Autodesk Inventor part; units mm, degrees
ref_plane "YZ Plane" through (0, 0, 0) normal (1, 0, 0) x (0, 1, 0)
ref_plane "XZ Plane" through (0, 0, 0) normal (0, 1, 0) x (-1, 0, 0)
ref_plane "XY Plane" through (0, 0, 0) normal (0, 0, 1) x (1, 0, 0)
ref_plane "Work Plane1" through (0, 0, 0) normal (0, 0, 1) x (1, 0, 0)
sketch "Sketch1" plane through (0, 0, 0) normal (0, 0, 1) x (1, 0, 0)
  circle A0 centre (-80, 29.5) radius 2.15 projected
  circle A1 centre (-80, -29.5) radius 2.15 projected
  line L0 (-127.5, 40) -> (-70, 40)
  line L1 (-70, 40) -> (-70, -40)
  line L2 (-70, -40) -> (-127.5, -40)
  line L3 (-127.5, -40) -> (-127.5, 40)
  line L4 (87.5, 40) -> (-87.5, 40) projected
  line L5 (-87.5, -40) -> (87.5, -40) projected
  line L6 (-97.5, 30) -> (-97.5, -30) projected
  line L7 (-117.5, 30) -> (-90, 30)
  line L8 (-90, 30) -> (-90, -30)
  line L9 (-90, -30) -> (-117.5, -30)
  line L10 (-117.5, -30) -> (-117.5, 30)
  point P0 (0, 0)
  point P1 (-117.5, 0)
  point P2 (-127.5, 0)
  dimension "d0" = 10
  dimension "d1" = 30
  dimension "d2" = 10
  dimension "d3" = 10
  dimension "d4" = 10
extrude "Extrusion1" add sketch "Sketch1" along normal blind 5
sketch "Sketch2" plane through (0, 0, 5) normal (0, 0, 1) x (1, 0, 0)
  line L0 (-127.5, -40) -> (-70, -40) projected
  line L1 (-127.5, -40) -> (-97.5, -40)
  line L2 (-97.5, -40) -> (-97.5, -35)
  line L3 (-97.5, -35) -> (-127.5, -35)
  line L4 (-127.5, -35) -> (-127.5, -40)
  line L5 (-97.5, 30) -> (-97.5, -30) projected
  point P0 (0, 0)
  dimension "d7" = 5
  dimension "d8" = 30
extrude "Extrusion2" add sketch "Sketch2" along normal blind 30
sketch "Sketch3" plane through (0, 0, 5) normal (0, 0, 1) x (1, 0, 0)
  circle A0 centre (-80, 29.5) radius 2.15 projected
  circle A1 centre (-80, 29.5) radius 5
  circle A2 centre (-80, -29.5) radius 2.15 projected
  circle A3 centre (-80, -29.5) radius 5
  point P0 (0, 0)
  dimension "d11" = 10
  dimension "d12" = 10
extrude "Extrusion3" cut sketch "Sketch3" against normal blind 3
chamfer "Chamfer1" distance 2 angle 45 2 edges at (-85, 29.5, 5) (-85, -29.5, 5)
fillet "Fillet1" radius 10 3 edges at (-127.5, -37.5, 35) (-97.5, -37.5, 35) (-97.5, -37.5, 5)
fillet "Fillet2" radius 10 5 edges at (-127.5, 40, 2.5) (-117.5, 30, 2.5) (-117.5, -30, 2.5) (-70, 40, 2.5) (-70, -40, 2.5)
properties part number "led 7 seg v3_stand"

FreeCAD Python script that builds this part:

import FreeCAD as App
import Part
import Sketcher


def edges_at(feature, points):
    """Names of the edges that pass closest to the given points."""
    edges = feature.Shape.Edges
    near = lambda p: min(range(len(edges)), key=lambda i: edges[i].distToShape(Part.Vertex(*p))[0])
    return sorted({f"Edge{near(p) + 1}" for p in points})


def add_polygon(sketch, points):
    """Adds a closed chain of lines whose ends are joined by coincident constraints."""
    first, n = sketch.GeometryCount, len(points)
    for a, b in zip(points, points[1:] + points[:1]):
        sketch.addGeometry(Part.LineSegment(App.Vector(*a, 0), App.Vector(*b, 0)), False)
    for i in range(n):
        sketch.addConstraint(Sketcher.Constraint("Coincident", first + i, 2, first + (i + 1) % n, 1))

doc = App.newDocument("Part")
params = doc.addObject("Spreadsheet::Sheet", "Params")
for row, (alias, value) in enumerate([
    ("sketch1_diameter", "4.3 mm"),
    ("sketch1_width", "57.5 mm"),
    ("pad1_length", "5 mm"),
    ("sketch2_width", "30 mm"),
    ("sketch2_height", "5 mm"),
    ("pad2_length", "30 mm"),
    ("sketch3_diameter", "10 mm"),
    ("sketch3_diameter2", "4.3 mm"),
    ("pocket1_length", "3 mm"),
    ("chamfer_size", "2 mm"),
    ("fillet_radius", "10 mm"),
    ("fillet2_radius", "10 mm"),
], start=1):
    params.set(f"A{row}", alias)
    params.set(f"B{row}", "=" + value)
    params.setAlias(f"B{row}", alias)

body = doc.addObject("PartDesign::Body", "Body")

# Sketch on XY plane
sketch1 = body.newObject("Sketcher::SketchObject", "Sketch")
sketch1.AttachmentSupport = (doc.getObject("XY_Plane"), [""])
sketch1.MapMode = "FlatFace"
add_polygon(sketch1, [(-70, 40), (-127.5, 40), (-127.5, -40), (-70, -40)])  # lines 0-3
sketch1.addGeometry(Part.Circle(App.Vector(-80, -29.5, 0), App.Vector(0, 0, 1), 2.15), False)  # 4
add_polygon(sketch1, [(-117.5, 30), (-90, 30), (-90, -30), (-117.5, -30)])  # lines 5-8
sketch1.addGeometry(Part.Circle(App.Vector(-80, 29.5, 0), App.Vector(0, 0, 1), 2.15), False)  # 9
sketch1.addConstraint([
    Sketcher.Constraint("Horizontal", 0),
    Sketcher.Constraint("Vertical", 1),
    Sketcher.Constraint("Horizontal", 2),
    Sketcher.Constraint("Vertical", 3),
    Sketcher.Constraint("Horizontal", 5),
    Sketcher.Constraint("Vertical", 6),
    Sketcher.Constraint("Horizontal", 7),
    Sketcher.Constraint("Vertical", 8),
    Sketcher.Constraint("Equal", 4, 9),
    Sketcher.Constraint("Symmetric", 4, 3, 9, 3, -1),
    Sketcher.Constraint("DistanceY", -1, 1, 5, 2, 30.0),
    Sketcher.Constraint("DistanceY", 6, 2, -1, 1, 30.0),
    Sketcher.Constraint("DistanceX", 4, 3, 2, 2, 10.0),
    Sketcher.Constraint("DistanceX", 5, 2, 9, 3, 10.0),
    Sketcher.Constraint("DistanceY", 5, 2, 3, 2, 10.0),
    Sketcher.Constraint("DistanceY", 2, 2, 6, 2, 10.0),
    Sketcher.Constraint("DistanceX", 1, 2, 7, 2, 10.0),
    Sketcher.Constraint("Diameter", 4, 4.3),
    Sketcher.Constraint("DistanceX", 0, 2, 0, 1, 57.5),
    Sketcher.Constraint("DistanceX", 4, 3, -1, 1, 80.0),
    Sketcher.Constraint("DistanceY", 4, 3, 9, 3, 59.0),
])
sketch1.setExpression("Constraints[25]", "Params.sketch1_diameter")
sketch1.setExpression("Constraints[26]", "Params.sketch1_width")
pad1 = body.newObject("PartDesign::Pad", "Pad")
pad1.Profile = sketch1
pad1.setExpression("Length", "Params.pad1_length")

# Sketch on XY plane
sketch2 = body.newObject("Sketcher::SketchObject", "Sketch001")
sketch2.AttachmentSupport = (doc.getObject("XY_Plane"), [""])
sketch2.MapMode = "FlatFace"
sketch2.AttachmentOffset = App.Placement(App.Vector(0, 0, 5), App.Rotation())
add_polygon(sketch2, [(-127.5, -35), (-127.5, -40), (-97.5, -40), (-97.5, -35)])  # lines 0-3
sketch2.addConstraint([
    Sketcher.Constraint("Vertical", 0),
    Sketcher.Constraint("Horizontal", 1),
    Sketcher.Constraint("Vertical", 2),
    Sketcher.Constraint("Horizontal", 3),
    Sketcher.Constraint("DistanceX", 1, 1, 1, 2, 30.0),
    Sketcher.Constraint("DistanceY", 0, 2, 0, 1, 5.0),
    Sketcher.Constraint("DistanceY", 0, 2, -1, 1, 40.0),
    Sketcher.Constraint("DistanceX", 0, 2, -1, 1, 127.5),
])
sketch2.setExpression("Constraints[8]", "Params.sketch2_width")
sketch2.setExpression("Constraints[9]", "Params.sketch2_height")
pad2 = body.newObject("PartDesign::Pad", "Pad001")
pad2.Profile = sketch2
pad2.setExpression("Length", "Params.pad2_length")

# Sketch on XY plane
sketch3 = body.newObject("Sketcher::SketchObject", "Sketch002")
sketch3.AttachmentSupport = (doc.getObject("XY_Plane"), [""])
sketch3.MapMode = "FlatFace"
sketch3.AttachmentOffset = App.Placement(App.Vector(0, 0, 5), App.Rotation())
sketch3.addGeometry([
    Part.Circle(App.Vector(-80, 29.5, 0), App.Vector(0, 0, 1), 5),
    Part.Circle(App.Vector(-80, 29.5, 0), App.Vector(0, 0, 1), 2.15),
    Part.Circle(App.Vector(-80, -29.5, 0), App.Vector(0, 0, 1), 5),
    Part.Circle(App.Vector(-80, -29.5, 0), App.Vector(0, 0, 1), 2.15),
], False)
sketch3.addConstraint([
    Sketcher.Constraint("Coincident", 1, 3, 0, 3),
    Sketcher.Constraint("Coincident", 3, 3, 2, 3),
    Sketcher.Constraint("Equal", 0, 2),
    Sketcher.Constraint("Equal", 1, 3),
    Sketcher.Constraint("Symmetric", 0, 3, 2, 3, -1),
    Sketcher.Constraint("Diameter", 0, 10.0),
    Sketcher.Constraint("Diameter", 1, 4.3),
    Sketcher.Constraint("DistanceX", 0, 3, -1, 1, 80.0),
    Sketcher.Constraint("DistanceY", 2, 3, 0, 3, 59.0),
])
sketch3.setExpression("Constraints[5]", "Params.sketch3_diameter")
sketch3.setExpression("Constraints[6]", "Params.sketch3_diameter2")
pocket1 = body.newObject("PartDesign::Pocket", "Pocket")
pocket1.Profile = sketch3
pocket1.setExpression("Length", "Params.pocket1_length")
doc.recompute()

chamfer = body.newObject("PartDesign::Chamfer", "Chamfer")
chamfer.Base = (pocket1, edges_at(pocket1, [(-85, 29.5, 5), (-85, -29.5, 5)]))
chamfer.setExpression("Size", "Params.chamfer_size")
doc.recompute()

fillet = body.newObject("PartDesign::Fillet", "Fillet")
fillet.Base = (chamfer, edges_at(chamfer, [(-127.5, -37.5, 35), (-97.5, -37.5, 35), (-97.5, -37.5, 5)]))
fillet.setExpression("Radius", "Params.fillet_radius")
doc.recompute()

fillet2 = body.newObject("PartDesign::Fillet", "Fillet001")
fillet2.Base = (fillet, edges_at(fillet, [
    (-127.5, 40, 2.5),
    (-117.5, 30, 2.5),
    (-117.5, -30, 2.5),
    (-70, 40, 2.5),
    (-70, -40, 2.5),
]))
fillet2.setExpression("Radius", "Params.fillet2_radius")

doc.recompute()
